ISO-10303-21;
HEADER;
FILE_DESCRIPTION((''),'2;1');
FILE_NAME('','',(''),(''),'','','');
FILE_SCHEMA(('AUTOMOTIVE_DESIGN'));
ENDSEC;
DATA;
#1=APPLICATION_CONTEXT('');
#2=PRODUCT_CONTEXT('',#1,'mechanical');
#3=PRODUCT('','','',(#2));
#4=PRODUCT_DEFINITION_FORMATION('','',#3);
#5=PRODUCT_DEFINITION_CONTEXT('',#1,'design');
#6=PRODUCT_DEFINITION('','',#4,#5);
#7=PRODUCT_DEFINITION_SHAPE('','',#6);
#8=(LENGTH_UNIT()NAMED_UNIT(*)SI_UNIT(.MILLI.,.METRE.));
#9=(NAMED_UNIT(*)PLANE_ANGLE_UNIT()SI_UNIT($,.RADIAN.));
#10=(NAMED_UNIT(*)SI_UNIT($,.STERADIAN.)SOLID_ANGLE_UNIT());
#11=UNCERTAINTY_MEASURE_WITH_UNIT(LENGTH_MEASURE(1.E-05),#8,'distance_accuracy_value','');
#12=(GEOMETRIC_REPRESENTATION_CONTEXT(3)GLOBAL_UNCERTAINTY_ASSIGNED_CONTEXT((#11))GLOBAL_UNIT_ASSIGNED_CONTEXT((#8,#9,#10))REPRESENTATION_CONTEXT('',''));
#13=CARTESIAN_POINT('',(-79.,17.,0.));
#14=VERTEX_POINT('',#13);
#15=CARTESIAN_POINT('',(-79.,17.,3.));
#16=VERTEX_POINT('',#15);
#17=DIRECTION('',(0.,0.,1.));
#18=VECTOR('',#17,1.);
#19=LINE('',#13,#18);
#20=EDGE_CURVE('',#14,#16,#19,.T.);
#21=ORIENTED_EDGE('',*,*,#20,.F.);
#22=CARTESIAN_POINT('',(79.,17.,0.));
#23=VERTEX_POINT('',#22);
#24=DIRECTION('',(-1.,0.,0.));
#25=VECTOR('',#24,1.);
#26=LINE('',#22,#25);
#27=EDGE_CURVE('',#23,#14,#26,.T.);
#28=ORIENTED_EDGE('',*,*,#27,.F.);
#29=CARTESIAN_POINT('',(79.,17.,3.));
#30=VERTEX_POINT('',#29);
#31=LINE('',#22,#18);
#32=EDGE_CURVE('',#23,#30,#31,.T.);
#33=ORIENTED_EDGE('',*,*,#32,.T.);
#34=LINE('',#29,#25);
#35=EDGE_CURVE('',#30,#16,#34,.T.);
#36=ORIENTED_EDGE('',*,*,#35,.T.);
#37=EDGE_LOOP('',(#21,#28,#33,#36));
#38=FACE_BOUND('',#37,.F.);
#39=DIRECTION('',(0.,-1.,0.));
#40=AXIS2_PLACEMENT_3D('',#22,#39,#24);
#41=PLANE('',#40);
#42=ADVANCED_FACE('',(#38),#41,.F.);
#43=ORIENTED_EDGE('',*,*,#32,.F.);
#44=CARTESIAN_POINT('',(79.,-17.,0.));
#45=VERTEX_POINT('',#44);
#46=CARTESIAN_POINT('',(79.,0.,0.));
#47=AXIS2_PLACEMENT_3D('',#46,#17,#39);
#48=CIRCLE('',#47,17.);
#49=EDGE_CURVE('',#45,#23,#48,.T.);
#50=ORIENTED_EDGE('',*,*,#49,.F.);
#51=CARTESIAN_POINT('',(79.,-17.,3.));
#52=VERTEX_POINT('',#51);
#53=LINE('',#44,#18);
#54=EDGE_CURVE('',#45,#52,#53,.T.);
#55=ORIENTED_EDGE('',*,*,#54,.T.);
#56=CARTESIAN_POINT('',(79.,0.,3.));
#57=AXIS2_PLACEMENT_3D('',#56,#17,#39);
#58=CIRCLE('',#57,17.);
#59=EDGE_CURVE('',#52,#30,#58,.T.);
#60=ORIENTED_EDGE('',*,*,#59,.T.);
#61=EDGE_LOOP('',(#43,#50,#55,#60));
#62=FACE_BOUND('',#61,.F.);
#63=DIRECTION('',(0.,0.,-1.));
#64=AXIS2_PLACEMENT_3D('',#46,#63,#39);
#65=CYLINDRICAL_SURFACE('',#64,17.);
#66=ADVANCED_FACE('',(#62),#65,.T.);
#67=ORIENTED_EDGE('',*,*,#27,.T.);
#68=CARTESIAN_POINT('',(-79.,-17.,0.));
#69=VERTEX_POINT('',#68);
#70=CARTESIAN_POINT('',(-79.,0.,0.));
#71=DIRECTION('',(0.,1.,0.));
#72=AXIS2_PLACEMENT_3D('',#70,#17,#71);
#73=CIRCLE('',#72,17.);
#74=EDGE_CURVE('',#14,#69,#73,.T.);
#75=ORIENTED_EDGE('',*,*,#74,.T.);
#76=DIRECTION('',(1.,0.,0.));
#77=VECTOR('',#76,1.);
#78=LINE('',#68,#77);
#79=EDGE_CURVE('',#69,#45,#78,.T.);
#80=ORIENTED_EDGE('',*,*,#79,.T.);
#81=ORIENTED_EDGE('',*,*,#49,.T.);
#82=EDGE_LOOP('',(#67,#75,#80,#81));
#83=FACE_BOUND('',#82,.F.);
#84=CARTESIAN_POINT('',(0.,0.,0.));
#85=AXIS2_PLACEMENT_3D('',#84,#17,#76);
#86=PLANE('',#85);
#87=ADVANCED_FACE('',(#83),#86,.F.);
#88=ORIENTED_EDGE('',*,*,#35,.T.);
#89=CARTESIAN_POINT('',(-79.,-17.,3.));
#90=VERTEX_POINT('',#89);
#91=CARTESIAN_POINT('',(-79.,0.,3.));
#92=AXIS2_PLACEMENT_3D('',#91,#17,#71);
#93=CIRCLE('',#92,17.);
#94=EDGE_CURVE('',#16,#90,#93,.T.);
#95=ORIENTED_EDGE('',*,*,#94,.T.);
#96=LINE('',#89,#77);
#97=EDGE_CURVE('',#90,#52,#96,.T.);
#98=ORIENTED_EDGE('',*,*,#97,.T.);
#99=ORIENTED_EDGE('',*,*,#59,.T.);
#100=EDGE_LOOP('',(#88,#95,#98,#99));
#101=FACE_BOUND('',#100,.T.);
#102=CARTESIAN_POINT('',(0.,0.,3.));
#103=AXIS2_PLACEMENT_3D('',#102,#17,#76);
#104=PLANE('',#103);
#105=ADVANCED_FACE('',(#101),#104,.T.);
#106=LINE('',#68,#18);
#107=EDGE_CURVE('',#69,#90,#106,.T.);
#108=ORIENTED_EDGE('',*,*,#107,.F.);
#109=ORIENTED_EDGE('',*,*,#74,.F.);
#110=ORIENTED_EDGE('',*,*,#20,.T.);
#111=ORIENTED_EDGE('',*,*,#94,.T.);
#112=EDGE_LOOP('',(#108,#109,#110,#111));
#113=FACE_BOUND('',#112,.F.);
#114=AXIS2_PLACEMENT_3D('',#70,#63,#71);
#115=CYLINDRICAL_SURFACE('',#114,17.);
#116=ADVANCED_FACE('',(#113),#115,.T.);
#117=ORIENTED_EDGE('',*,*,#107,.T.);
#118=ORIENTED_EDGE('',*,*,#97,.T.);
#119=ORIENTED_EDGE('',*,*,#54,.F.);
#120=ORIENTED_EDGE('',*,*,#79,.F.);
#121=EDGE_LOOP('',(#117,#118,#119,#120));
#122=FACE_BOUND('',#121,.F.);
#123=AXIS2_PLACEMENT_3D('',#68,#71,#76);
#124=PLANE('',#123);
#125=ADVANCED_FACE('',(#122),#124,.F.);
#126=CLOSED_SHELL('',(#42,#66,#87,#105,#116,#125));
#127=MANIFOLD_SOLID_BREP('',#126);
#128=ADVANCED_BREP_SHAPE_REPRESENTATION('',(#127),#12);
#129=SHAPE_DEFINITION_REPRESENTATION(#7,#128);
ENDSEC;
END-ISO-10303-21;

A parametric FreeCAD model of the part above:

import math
import FreeCAD as App
import Part
import Sketcher
from FreeCAD import Vector

doc = App.newDocument("Part")
params = doc.addObject("Spreadsheet::Sheet", "Params")
for row, (alias, value) in enumerate([
    ("sketch1_radius", "17 mm"),
    ("pad1_length", "3 mm"),
], start=1):
    params.set(f"A{row}", alias)
    params.set(f"B{row}", "=" + value)
    params.setAlias(f"B{row}", alias)

body = doc.addObject("PartDesign::Body", "Body")

sketch1 = doc.addObject("Sketcher::SketchObject", "Sketch")
body.addObject(sketch1)
sketch1.AttachmentSupport = (doc.XY_Plane, [""])
sketch1.MapMode = "FlatFace"
sketch1.addGeometry(Part.ArcOfCircle(Part.Circle(Vector(-79, 0, 0), Vector(0, 0, 1), 17), math.radians(90), math.radians(270)), False)
sketch1.addGeometry(Part.LineSegment(Vector(-79, -17, 0), Vector(79, -17, 0)), False)
sketch1.addGeometry(Part.ArcOfCircle(Part.Circle(Vector(79, 0, 0), Vector(0, 0, 1), 17), math.radians(-90), math.radians(90)), False)
sketch1.addGeometry(Part.LineSegment(Vector(79, 17, 0), Vector(-79, 17, 0)), False)
sketch1.addConstraint(Sketcher.Constraint("Tangent", 0, 2, 1, 1))
sketch1.addConstraint(Sketcher.Constraint("Tangent", 1, 2, 2, 1))
sketch1.addConstraint(Sketcher.Constraint("Tangent", 2, 2, 3, 1))
sketch1.addConstraint(Sketcher.Constraint("Tangent", 3, 2, 0, 1))
sketch1.addConstraint(Sketcher.Constraint("Horizontal", 1))
sketch1.addConstraint(Sketcher.Constraint("Horizontal", 3))
sketch1.addConstraint(Sketcher.Constraint("Symmetric", 0, 3, 2, 3, -1, 1))
sketch1.addConstraint(Sketcher.Constraint("Radius", 0, 17.0))
sketch1.addConstraint(Sketcher.Constraint("DistanceX", 0, 3, -1, 1, 79.0))
sketch1.setExpression("Constraints[7]", "Params.sketch1_radius")
pad1 = doc.addObject("PartDesign::Pad", "Pad")
body.addObject(pad1)
pad1.Profile = sketch1
pad1.setExpression("Length", "Params.pad1_length")

doc.recompute()
